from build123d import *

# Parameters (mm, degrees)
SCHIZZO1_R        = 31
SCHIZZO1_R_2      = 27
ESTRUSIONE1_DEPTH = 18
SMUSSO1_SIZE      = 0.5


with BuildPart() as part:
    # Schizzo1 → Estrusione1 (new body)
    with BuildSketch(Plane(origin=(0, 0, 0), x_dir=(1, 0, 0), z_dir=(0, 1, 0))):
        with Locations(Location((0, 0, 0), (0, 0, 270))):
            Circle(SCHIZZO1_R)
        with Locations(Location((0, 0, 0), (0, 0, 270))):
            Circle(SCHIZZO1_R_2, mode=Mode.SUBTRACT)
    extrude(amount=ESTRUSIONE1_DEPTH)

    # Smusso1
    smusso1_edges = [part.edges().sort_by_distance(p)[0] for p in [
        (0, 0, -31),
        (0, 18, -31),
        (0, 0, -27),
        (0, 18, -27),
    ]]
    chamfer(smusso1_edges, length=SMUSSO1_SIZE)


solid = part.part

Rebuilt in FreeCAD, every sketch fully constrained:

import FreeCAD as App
import Part
import Sketcher
Q = App.Units.Quantity


def edges_at(feature, points):
    """Names of the edges that pass closest to the given points."""
    edges = feature.Shape.Edges
    near = lambda p: min(range(len(edges)), key=lambda i: edges[i].distToShape(Part.Vertex(*p))[0])
    return sorted({f"Edge{near(p) + 1}" for p in points})

doc = App.newDocument("Part")
body = doc.addObject("PartDesign::Body", "Body")

sketch1 = doc.addObject("Sketcher::SketchObject", "Sketch")
body.addObject(sketch1)
sketch1.AttachmentSupport = (doc.XZ_Plane, [""])
sketch1.MapMode = "FlatFace"
sketch1.addGeometry(Part.Circle(App.Vector(0, 0, 0), App.Vector(0, 0, 1), 31), False)
sketch1.addGeometry(Part.Circle(App.Vector(0, 0, 0), App.Vector(0, 0, 1), 27), False)
sketch1.addConstraint(Sketcher.Constraint("Coincident", 0, 3, -1, 1))
sketch1.addConstraint(Sketcher.Constraint("Coincident", 1, 3, -1, 1))
sketch1.addConstraint(Sketcher.Constraint("Diameter", 0, Q("62 mm")))
sketch1.addConstraint(Sketcher.Constraint("Diameter", 1, Q("54 mm")))
pad1 = doc.addObject("PartDesign::Pad", "Pad")
body.addObject(pad1)
pad1.Profile = sketch1
pad1.Length = 18
pad1.Reversed = True
doc.recompute()

chamfer = doc.addObject("PartDesign::Chamfer", "Chamfer")
body.addObject(chamfer)
chamfer.Base = (pad1, edges_at(pad1, [
    (0, 0, -31),
    (0, 18, -31),
    (0, 0, -27),
    (0, 18, -27),
]))
chamfer.Size = 0.5

doc.recompute()
